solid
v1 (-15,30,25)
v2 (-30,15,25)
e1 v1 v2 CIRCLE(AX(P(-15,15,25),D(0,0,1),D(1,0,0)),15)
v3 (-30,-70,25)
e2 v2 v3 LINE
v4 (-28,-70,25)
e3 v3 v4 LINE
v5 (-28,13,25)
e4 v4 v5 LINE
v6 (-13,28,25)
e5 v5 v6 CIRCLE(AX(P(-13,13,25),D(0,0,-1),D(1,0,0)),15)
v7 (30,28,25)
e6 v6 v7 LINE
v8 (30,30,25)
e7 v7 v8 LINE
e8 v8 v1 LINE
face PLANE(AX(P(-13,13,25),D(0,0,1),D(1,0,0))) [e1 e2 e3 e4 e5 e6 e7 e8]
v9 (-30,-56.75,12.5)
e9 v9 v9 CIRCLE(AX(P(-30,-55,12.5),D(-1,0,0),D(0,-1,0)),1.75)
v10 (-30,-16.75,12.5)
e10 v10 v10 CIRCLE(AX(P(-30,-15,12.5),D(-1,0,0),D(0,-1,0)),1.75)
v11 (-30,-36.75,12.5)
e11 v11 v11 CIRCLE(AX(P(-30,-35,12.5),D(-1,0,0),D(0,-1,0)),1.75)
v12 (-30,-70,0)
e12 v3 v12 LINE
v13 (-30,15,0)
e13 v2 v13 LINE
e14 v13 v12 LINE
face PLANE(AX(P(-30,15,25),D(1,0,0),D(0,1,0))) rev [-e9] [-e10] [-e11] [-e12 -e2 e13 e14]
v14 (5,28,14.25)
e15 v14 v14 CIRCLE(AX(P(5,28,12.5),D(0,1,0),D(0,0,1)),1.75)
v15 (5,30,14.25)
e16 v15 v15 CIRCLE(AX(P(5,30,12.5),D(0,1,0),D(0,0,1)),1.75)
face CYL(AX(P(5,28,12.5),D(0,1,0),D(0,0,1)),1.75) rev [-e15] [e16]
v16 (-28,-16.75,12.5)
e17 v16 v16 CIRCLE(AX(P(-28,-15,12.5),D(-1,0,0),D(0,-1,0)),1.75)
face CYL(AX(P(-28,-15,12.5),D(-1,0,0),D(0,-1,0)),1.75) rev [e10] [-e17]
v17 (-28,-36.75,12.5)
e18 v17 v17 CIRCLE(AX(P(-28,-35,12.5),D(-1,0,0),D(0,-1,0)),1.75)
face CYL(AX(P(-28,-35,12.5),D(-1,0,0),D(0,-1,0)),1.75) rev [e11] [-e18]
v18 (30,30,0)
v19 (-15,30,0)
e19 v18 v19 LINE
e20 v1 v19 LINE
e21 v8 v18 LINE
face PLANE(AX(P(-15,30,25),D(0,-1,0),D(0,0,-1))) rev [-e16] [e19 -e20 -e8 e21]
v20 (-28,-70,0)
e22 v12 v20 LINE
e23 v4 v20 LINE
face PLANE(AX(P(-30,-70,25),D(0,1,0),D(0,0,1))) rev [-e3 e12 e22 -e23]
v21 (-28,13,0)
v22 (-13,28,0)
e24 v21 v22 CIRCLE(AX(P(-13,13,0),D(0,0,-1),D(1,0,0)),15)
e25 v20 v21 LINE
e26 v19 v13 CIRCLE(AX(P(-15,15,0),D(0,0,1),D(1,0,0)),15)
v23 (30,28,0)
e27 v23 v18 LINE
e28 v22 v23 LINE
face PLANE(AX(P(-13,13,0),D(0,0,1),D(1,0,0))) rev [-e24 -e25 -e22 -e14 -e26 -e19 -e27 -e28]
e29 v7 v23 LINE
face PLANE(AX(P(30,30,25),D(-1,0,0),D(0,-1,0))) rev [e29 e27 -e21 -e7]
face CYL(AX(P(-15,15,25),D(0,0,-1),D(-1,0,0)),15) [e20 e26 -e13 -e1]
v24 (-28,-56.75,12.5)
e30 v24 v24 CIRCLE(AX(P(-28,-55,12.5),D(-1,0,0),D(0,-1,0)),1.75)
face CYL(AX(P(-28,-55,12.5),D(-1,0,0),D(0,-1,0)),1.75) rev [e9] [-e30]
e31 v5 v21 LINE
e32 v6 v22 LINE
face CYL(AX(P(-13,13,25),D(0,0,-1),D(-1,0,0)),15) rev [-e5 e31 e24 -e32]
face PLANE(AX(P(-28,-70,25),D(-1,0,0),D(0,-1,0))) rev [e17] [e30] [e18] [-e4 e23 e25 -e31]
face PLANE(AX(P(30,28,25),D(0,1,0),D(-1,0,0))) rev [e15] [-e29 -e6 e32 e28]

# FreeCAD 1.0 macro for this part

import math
import FreeCAD as App
import Part
import Sketcher

doc = App.newDocument("Part")
body = doc.addObject("PartDesign::Body", "Body")

# Sketch on XY plane
sketch1 = doc.addObject("Sketcher::SketchObject", "Sketch")
body.addObject(sketch1)
sketch1.AttachmentSupport = (doc.XY_Plane, [""])
sketch1.MapMode = "FlatFace"
sketch1.addGeometry([
    Part.LineSegment(App.Vector(30, 30, 0), App.Vector(-15, 30, 0)),  # 0
    Part.ArcOfCircle(Part.Circle(App.Vector(-15, 15, 0), App.Vector(0, 0, 1), 15), math.radians(90), math.radians(180)),  # 1
    Part.LineSegment(App.Vector(-30, 15, 0), App.Vector(-30, -70, 0)),  # 2
    Part.LineSegment(App.Vector(-30, -70, 0), App.Vector(-28, -70, 0)),  # 3
    Part.LineSegment(App.Vector(-28, -70, 0), App.Vector(-28, 13, 0)),  # 4
    Part.ArcOfCircle(Part.Circle(App.Vector(-13, 13, 0), App.Vector(0, 0, 1), 15), math.radians(90), math.radians(180)),  # 5
    Part.LineSegment(App.Vector(-13, 28, 0), App.Vector(30, 28, 0)),  # 6
    Part.LineSegment(App.Vector(30, 28, 0), App.Vector(30, 30, 0)),  # 7
], False)
sketch1.addConstraint([
    Sketcher.Constraint("Tangent", 0, 2, 1, 1),
    Sketcher.Constraint("Tangent", 1, 2, 2, 1),
    Sketcher.Constraint("Coincident", 2, 2, 3, 1),
    Sketcher.Constraint("Coincident", 3, 2, 4, 1),
    Sketcher.Constraint("Tangent", 4, 2, 5, 2),
    Sketcher.Constraint("Tangent", 5, 1, 6, 1),
    Sketcher.Constraint("Coincident", 6, 2, 7, 1),
    Sketcher.Constraint("Coincident", 7, 2, 0, 1),
    Sketcher.Constraint("Horizontal", 0),
    Sketcher.Constraint("Vertical", 2),
    Sketcher.Constraint("Horizontal", 3),
    Sketcher.Constraint("Vertical", 4),
    Sketcher.Constraint("Horizontal", 6),
    Sketcher.Constraint("Vertical", 7),
    Sketcher.Constraint("Equal", 1, 5),
    Sketcher.Constraint("Equal", 3, 7),
    Sketcher.Constraint("Radius", 1, 15.0),
    Sketcher.Constraint("DistanceX", 0, 2, 0, 1, 45.0),
    Sketcher.Constraint("DistanceX", 3, 1, 3, 2, 2.0),
    Sketcher.Constraint("DistanceY", 2, 2, 2, 1, 85.0),
    Sketcher.Constraint("DistanceX", 1, 3, -1, 1, 15.0),
    Sketcher.Constraint("DistanceY", -1, 1, 1, 3, 15.0),
])
pad1 = doc.addObject("PartDesign::Pad", "Pad")
body.addObject(pad1)
pad1.Profile = sketch1
pad1.Length = 25

# Sketch on YZ plane
sketch2 = doc.addObject("Sketcher::SketchObject", "Sketch001")
body.addObject(sketch2)
sketch2.AttachmentSupport = (doc.YZ_Plane, [""])
sketch2.MapMode = "FlatFace"
sketch2.AttachmentOffset = App.Placement(App.Vector(0, 0, -30), App.Rotation())
sketch2.addGeometry([
    Part.Circle(App.Vector(-15, 12.5, 0), App.Vector(0, 0, 1), 1.8),
    Part.Circle(App.Vector(-35, 12.5, 0), App.Vector(0, 0, 1), 1.8),
    Part.Circle(App.Vector(-55, 12.5, 0), App.Vector(0, 0, 1), 1.8),
], False)
sketch2.addConstraint([
    Sketcher.Constraint("Equal", 0, 1),
    Sketcher.Constraint("Equal", 1, 2),
    Sketcher.Constraint("Horizontal", 0, 3, 1, 3),
    Sketcher.Constraint("Horizontal", 1, 3, 2, 3),
    Sketcher.Constraint("Diameter", 0, 3.5),
    Sketcher.Constraint("DistanceX", 0, 3, -1, 1, 15.0),
    Sketcher.Constraint("DistanceX", 1, 3, -1, 1, 35.0),
    Sketcher.Constraint("DistanceX", 2, 3, -1, 1, 55.0),
    Sketcher.Constraint("DistanceY", -1, 1, 0, 3, 12.5),
])
pocket1 = doc.addObject("PartDesign::Pocket", "Pocket")
body.addObject(pocket1)
pocket1.Profile = sketch2
pocket1.Length = 2
pocket1.Reversed = True

# Sketch on XZ plane
sketch3 = doc.addObject("Sketcher::SketchObject", "Sketch002")
body.addObject(sketch3)
sketch3.AttachmentSupport = (doc.XZ_Plane, [""])
sketch3.MapMode = "FlatFace"
sketch3.AttachmentOffset = App.Placement(App.Vector(0, 0, -30), App.Rotation())
sketch3.addGeometry(Part.Circle(App.Vector(5, 12.5, 0), App.Vector(0, 0, 1), 1.8), False)
sketch3.addConstraint([
    Sketcher.Constraint("Diameter", 0, 3.5),
    Sketcher.Constraint("DistanceX", -1, 1, 0, 3, 5.0),
    Sketcher.Constraint("DistanceY", -1, 1, 0, 3, 12.5),
])
pocket2 = doc.addObject("PartDesign::Pocket", "Pocket001")
body.addObject(pocket2)
pocket2.Profile = sketch3
pocket2.Length = 2
pocket2.Reversed = True

doc.recompute()
